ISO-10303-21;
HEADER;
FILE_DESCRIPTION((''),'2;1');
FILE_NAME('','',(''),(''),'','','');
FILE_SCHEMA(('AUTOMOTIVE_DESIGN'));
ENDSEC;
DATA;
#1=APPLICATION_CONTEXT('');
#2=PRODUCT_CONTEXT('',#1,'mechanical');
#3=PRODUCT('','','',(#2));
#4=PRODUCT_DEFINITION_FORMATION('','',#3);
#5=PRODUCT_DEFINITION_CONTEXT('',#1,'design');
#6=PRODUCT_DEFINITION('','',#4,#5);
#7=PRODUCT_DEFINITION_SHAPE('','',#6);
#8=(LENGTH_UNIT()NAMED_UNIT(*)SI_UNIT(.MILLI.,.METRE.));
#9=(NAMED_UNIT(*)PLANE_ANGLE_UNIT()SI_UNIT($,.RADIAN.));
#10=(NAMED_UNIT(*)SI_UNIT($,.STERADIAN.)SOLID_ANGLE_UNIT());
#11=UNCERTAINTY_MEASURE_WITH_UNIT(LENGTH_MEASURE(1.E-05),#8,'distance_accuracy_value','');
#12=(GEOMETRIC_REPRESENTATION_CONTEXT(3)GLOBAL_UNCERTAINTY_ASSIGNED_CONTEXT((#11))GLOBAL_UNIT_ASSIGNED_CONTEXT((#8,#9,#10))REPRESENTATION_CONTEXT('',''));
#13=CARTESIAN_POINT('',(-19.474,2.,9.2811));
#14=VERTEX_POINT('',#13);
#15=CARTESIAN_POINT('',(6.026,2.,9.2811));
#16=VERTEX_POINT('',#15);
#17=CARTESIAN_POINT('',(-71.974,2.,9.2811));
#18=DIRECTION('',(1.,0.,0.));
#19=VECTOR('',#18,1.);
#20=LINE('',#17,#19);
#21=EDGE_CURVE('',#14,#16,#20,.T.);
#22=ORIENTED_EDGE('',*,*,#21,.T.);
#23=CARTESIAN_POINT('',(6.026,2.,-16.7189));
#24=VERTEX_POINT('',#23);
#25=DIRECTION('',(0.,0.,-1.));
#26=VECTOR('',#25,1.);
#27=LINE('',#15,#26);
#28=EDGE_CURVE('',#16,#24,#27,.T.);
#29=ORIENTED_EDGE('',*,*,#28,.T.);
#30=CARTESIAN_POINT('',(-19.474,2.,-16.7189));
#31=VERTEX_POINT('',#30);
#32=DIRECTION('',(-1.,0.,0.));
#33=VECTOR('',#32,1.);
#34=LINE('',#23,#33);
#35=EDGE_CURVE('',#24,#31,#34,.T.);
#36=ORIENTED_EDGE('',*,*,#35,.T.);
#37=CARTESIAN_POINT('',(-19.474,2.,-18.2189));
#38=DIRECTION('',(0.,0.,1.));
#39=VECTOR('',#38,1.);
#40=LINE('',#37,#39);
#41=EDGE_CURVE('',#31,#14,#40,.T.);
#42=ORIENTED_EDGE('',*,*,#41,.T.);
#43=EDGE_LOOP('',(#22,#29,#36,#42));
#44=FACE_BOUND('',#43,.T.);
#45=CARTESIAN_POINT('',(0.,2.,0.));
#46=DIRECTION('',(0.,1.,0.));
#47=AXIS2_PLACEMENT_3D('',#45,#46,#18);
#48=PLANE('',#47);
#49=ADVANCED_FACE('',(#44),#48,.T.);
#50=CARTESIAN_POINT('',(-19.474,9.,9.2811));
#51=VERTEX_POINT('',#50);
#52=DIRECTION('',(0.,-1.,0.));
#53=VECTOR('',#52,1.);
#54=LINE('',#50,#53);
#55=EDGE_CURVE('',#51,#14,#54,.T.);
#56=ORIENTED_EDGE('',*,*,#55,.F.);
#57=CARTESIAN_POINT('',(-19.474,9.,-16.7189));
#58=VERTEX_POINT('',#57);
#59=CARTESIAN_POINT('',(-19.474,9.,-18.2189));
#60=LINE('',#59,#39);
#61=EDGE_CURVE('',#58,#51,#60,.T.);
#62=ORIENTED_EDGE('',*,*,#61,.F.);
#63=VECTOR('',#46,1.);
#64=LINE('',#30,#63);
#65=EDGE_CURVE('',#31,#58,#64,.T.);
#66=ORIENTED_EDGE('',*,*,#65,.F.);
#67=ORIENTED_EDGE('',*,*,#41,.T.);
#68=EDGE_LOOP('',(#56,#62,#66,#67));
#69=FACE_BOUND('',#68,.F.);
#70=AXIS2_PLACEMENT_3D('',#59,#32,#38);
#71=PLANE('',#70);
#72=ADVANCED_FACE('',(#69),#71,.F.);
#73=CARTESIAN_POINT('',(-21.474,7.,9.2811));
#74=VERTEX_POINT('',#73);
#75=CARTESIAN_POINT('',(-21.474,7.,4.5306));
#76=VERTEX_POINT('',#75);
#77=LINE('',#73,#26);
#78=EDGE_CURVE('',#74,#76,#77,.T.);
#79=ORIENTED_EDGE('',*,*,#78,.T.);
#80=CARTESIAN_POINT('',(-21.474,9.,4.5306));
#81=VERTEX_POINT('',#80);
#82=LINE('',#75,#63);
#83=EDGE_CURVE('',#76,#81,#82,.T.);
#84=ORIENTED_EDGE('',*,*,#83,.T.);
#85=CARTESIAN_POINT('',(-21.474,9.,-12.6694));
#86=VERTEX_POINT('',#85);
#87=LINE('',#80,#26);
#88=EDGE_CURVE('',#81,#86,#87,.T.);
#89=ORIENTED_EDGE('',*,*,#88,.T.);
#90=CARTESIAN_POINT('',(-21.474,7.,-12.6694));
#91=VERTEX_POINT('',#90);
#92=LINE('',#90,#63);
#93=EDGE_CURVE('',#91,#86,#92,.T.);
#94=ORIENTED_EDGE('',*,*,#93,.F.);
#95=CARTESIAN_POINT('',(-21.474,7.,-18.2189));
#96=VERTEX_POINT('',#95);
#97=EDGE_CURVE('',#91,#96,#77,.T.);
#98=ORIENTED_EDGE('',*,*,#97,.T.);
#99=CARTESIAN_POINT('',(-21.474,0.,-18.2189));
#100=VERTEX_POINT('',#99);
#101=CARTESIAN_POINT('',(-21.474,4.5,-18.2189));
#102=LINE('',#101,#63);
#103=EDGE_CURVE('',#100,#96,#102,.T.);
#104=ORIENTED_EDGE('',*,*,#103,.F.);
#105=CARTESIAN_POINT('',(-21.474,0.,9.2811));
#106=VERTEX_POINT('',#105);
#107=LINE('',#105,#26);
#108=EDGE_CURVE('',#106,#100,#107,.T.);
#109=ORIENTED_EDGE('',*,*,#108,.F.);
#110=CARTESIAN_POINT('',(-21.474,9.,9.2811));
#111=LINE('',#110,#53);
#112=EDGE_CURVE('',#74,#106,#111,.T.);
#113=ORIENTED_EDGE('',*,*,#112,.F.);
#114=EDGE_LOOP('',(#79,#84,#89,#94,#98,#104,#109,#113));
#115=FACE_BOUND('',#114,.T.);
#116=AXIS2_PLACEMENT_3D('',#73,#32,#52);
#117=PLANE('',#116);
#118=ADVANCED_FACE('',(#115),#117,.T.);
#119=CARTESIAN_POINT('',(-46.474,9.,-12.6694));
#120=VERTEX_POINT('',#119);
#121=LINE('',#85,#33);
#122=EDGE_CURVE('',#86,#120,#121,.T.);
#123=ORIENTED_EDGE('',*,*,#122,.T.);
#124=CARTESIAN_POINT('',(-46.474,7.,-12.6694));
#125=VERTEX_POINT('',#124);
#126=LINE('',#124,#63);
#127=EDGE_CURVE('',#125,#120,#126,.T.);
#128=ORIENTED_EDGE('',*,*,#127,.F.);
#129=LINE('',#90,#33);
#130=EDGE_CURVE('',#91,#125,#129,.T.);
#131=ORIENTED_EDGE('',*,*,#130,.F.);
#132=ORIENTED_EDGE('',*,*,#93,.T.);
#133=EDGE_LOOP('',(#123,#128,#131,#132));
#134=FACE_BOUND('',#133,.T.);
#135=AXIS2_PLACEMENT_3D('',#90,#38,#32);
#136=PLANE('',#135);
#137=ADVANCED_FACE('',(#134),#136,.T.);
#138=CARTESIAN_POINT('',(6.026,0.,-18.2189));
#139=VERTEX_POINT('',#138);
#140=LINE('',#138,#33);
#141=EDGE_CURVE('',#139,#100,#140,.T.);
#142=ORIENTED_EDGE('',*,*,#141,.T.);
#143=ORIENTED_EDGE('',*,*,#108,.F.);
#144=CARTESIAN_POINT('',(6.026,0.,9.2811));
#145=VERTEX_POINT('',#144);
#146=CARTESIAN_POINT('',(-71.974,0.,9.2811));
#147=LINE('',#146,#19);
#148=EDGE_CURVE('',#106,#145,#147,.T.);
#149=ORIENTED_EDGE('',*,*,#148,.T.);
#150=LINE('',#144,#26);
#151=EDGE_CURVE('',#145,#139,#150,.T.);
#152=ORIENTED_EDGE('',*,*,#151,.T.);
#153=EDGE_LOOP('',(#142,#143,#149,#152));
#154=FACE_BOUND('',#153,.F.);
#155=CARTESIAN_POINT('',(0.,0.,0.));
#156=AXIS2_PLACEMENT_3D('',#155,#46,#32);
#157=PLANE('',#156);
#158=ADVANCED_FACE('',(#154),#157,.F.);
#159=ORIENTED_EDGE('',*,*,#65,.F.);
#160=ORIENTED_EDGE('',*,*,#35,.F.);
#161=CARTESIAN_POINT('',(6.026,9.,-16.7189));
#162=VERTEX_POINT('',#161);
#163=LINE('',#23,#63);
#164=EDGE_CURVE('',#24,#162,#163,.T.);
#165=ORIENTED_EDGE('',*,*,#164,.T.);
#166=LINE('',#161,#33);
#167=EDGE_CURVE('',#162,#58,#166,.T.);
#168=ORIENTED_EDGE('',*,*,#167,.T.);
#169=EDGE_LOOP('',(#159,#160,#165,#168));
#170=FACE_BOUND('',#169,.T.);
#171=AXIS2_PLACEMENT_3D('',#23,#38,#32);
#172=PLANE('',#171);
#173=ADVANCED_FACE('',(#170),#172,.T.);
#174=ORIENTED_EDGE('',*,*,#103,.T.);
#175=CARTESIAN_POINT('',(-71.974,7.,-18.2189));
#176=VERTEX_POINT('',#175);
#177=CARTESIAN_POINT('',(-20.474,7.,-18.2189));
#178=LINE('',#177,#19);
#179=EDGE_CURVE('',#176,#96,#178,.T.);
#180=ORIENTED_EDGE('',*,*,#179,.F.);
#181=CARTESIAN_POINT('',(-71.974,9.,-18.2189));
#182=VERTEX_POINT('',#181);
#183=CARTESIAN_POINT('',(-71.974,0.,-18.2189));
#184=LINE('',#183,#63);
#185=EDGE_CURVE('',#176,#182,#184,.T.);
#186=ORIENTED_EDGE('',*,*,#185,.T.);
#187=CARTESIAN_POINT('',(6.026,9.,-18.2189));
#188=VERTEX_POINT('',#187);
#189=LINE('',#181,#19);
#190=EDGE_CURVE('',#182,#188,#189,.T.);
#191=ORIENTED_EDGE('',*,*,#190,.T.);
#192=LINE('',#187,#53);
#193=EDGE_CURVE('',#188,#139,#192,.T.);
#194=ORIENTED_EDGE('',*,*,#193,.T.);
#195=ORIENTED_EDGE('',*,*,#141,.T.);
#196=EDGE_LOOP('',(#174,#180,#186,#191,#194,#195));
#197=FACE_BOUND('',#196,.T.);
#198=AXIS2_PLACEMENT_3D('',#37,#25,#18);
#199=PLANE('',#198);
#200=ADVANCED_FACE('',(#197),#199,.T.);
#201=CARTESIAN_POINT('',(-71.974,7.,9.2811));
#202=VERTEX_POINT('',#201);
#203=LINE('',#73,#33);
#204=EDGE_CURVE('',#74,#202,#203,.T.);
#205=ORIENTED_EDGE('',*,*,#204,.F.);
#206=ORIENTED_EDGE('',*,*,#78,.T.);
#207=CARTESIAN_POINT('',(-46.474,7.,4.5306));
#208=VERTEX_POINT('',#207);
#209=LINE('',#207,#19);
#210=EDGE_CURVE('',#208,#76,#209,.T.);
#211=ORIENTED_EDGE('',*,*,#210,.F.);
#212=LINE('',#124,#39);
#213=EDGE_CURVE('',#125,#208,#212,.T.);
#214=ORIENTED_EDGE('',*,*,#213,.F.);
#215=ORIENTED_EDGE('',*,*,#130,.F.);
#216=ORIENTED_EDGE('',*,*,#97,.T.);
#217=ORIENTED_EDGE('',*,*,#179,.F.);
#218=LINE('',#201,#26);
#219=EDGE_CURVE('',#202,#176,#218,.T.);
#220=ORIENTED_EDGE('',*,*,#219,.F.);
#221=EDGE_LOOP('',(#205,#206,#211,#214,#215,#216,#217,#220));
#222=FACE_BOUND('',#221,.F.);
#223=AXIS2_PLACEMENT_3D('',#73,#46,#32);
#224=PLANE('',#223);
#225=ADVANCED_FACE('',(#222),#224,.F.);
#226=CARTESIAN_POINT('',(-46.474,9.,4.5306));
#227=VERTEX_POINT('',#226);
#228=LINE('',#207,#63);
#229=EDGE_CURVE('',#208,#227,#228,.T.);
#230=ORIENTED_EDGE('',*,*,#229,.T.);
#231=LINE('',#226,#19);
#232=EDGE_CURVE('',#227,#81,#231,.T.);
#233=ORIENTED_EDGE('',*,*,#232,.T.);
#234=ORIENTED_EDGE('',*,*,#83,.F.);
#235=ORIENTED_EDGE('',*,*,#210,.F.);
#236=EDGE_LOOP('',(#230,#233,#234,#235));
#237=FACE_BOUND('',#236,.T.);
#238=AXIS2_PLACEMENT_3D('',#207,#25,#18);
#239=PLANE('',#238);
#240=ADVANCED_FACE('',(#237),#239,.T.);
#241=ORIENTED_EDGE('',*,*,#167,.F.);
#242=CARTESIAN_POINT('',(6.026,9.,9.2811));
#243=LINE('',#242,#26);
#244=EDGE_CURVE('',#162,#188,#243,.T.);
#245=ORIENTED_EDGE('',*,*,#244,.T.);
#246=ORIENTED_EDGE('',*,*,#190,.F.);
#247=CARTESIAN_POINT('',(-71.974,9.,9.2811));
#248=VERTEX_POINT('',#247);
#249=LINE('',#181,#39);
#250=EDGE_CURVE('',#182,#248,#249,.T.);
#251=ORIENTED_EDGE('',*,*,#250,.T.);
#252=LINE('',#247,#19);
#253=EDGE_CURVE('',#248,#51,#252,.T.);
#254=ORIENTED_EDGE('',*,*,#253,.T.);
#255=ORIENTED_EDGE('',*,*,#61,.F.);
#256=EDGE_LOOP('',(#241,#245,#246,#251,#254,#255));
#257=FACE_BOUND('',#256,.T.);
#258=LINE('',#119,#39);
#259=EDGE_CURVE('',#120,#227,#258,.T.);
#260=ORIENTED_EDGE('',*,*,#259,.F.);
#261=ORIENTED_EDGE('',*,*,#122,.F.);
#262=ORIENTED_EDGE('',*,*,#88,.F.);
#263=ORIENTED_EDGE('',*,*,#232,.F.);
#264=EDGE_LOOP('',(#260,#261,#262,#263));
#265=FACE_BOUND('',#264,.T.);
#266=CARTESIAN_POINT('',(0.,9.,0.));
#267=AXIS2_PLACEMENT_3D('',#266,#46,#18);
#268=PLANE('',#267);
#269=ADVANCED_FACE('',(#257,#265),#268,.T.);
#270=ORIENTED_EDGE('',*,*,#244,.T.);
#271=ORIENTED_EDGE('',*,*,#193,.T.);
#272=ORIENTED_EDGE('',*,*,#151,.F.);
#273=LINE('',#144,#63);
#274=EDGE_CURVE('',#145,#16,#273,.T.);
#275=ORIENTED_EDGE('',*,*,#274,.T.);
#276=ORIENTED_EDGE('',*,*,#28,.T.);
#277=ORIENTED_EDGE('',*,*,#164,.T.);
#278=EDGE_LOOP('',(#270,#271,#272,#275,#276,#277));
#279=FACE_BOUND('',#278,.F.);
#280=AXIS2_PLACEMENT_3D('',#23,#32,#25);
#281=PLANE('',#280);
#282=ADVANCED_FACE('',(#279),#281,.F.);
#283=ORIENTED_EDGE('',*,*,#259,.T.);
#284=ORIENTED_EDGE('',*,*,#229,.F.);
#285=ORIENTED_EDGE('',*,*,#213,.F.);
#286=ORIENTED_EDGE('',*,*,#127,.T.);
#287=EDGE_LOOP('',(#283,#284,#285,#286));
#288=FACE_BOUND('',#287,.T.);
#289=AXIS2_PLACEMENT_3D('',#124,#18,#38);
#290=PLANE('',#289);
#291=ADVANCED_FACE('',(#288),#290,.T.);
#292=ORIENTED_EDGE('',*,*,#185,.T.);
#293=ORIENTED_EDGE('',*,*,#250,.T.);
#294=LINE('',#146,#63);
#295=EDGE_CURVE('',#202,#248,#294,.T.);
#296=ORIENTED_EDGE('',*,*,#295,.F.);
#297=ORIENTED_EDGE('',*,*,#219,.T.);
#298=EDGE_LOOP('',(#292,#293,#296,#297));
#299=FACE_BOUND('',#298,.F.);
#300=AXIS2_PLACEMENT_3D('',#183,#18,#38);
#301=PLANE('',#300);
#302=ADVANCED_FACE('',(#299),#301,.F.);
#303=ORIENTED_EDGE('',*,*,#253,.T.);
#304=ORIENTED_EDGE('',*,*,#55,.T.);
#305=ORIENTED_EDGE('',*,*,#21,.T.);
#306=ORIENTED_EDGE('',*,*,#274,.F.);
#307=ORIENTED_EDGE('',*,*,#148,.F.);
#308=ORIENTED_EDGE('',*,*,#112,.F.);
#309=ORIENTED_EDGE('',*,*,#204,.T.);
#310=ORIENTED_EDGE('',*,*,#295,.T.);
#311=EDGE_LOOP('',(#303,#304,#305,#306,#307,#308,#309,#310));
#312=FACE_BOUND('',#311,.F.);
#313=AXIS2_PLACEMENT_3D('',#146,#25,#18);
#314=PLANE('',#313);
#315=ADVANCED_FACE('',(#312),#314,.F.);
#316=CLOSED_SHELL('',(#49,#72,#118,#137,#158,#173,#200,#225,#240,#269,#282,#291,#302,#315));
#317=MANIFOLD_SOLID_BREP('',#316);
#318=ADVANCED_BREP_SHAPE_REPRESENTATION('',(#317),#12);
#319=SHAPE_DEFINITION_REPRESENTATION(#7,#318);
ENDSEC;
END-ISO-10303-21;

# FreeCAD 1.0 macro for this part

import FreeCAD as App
import Part
import Sketcher
Q = App.Units.Quantity


def add_polygon(sketch, points):
    """Adds a closed chain of lines whose ends are joined by coincident constraints."""
    first, n = sketch.GeometryCount, len(points)
    for a, b in zip(points, points[1:] + points[:1]):
        sketch.addGeometry(Part.LineSegment(App.Vector(*a, 0), App.Vector(*b, 0)), False)
    for i in range(n):
        sketch.addConstraint(Sketcher.Constraint("Coincident", first + i, 2, first + (i + 1) % n, 1))

doc = App.newDocument("Part")
params = doc.addObject("Spreadsheet::Sheet", "Params")
for row, (alias, value) in enumerate([
    ("sketch1_width", "78 mm"),
    ("sketch1_height", "27.5 mm"),
    ("pad1_length", "9 mm"),
    ("sketch2_width", "25.5 mm"),
    ("sketch2_height", "27.5 mm"),
    ("pocket1_length", "7 mm"),
    ("sketch3_height", "1.5 mm"),
    ("sketch3_width", "25.5 mm"),
    ("pad2_length", "7 mm"),
    ("sketch4_height", "7 mm"),
    ("sketch4_width", "50.5 mm"),
    ("pocket2_length", "44 mm"),
    ("sketch5_width", "25 mm"),
    ("sketch5_height", "17.2 mm"),
    ("pocket3_length", "2 mm"),
], start=1):
    params.set(f"A{row}", alias)
    params.set(f"B{row}", "=" + value)
    params.setAlias(f"B{row}", alias)

body = doc.addObject("PartDesign::Body", "Body")

sketch1 = body.newObject("Sketcher::SketchObject", "Sketch")
sketch1.AttachmentSupport = (doc.getObject("XZ_Plane"), [""])
sketch1.MapMode = "FlatFace"
add_polygon(sketch1, [(-71.974, -18.2189), (-71.974, 9.2811), (6.026, 9.2811), (6.026, -18.2189)])
sketch1.addConstraint(Sketcher.Constraint("Vertical", 0))
sketch1.addConstraint(Sketcher.Constraint("Horizontal", 1))
sketch1.addConstraint(Sketcher.Constraint("Vertical", 2))
sketch1.addConstraint(Sketcher.Constraint("Horizontal", 3))
sketch1.addConstraint(Sketcher.Constraint("DistanceX", 1, 1, 1, 2, Q("78 mm")))
sketch1.addConstraint(Sketcher.Constraint("DistanceY", 0, 1, 0, 2, Q("27.5 mm")))
sketch1.addConstraint(Sketcher.Constraint("DistanceX", 0, 2, -1, 1, Q("71.974 mm")))
sketch1.addConstraint(Sketcher.Constraint("DistanceY", -1, 1, 0, 2, Q("9.281 mm")))
sketch1.setExpression("Constraints[8]", "Params.sketch1_width")
sketch1.setExpression("Constraints[9]", "Params.sketch1_height")
pad1 = body.newObject("PartDesign::Pad", "Pad")
pad1.Profile = sketch1
pad1.setExpression("Length", "Params.pad1_length")
pad1.Reversed = True

sketch2 = body.newObject("Sketcher::SketchObject", "Sketch001")
sketch2.AttachmentSupport = (doc.getObject("XZ_Plane"), [""])
sketch2.MapMode = "FlatFace"
sketch2.AttachmentOffset = App.Placement(App.Vector(0, 0, -9), App.Rotation())
add_polygon(sketch2, [(6.026, 9.2811), (6.026, -18.2189), (-19.474, -18.2189), (-19.474, 9.2811)])
sketch2.addConstraint(Sketcher.Constraint("Vertical", 0))
sketch2.addConstraint(Sketcher.Constraint("Horizontal", 1))
sketch2.addConstraint(Sketcher.Constraint("Vertical", 2))
sketch2.addConstraint(Sketcher.Constraint("Horizontal", 3))
sketch2.addConstraint(Sketcher.Constraint("DistanceX", 1, 2, 1, 1, Q("25.5 mm")))
sketch2.addConstraint(Sketcher.Constraint("DistanceY", 0, 2, 0, 1, Q("27.5 mm")))
sketch2.addConstraint(Sketcher.Constraint("DistanceX", -1, 1, 0, 2, Q("6.026 mm")))
sketch2.addConstraint(Sketcher.Constraint("DistanceY", 0, 2, -1, 1, Q("18.219 mm")))
sketch2.setExpression("Constraints[8]", "Params.sketch2_width")
sketch2.setExpression("Constraints[9]", "Params.sketch2_height")
pocket1 = body.newObject("PartDesign::Pocket", "Pocket")
pocket1.Profile = sketch2
pocket1.setExpression("Length", "Params.pocket1_length")
pocket1.Reversed = True

sketch3 = body.newObject("Sketcher::SketchObject", "Sketch002")
sketch3.AttachmentSupport = (doc.getObject("XZ_Plane"), [""])
sketch3.MapMode = "FlatFace"
sketch3.AttachmentOffset = App.Placement(App.Vector(0, 0, -2), App.Rotation())
add_polygon(sketch3, [(-19.474, -18.2189), (-19.474, -16.7189), (6.026, -16.7189), (6.026, -18.2189)])
sketch3.addConstraint(Sketcher.Constraint("Vertical", 0))
sketch3.addConstraint(Sketcher.Constraint("Horizontal", 1))
sketch3.addConstraint(Sketcher.Constraint("Vertical", 2))
sketch3.addConstraint(Sketcher.Constraint("Horizontal", 3))
sketch3.addConstraint(Sketcher.Constraint("DistanceY", 0, 1, 0, 2, Q("1.5 mm")))
sketch3.addConstraint(Sketcher.Constraint("DistanceX", 1, 1, 1, 2, Q("25.5 mm")))
sketch3.addConstraint(Sketcher.Constraint("DistanceX", 0, 2, -1, 1, Q("19.474 mm")))
sketch3.addConstraint(Sketcher.Constraint("DistanceY", 0, 2, -1, 1, Q("16.719 mm")))
sketch3.setExpression("Constraints[8]", "Params.sketch3_height")
sketch3.setExpression("Constraints[9]", "Params.sketch3_width")
pad2 = body.newObject("PartDesign::Pad", "Pad001")
pad2.Profile = sketch3
pad2.setExpression("Length", "Params.pad2_length")
pad2.Reversed = True

sketch4 = body.newObject("Sketcher::SketchObject", "Sketch003")
sketch4.AttachmentSupport = (doc.getObject("XY_Plane"), [""])
sketch4.MapMode = "FlatFace"
sketch4.AttachmentOffset = App.Placement(App.Vector(0, 0, 9.2811), App.Rotation())
add_polygon(sketch4, [(-21.474, 7), (-71.974, 7), (-71.974, 0), (-21.474, 0)])
sketch4.addConstraint(Sketcher.Constraint("Horizontal", 0))
sketch4.addConstraint(Sketcher.Constraint("Vertical", 1))
sketch4.addConstraint(Sketcher.Constraint("Horizontal", 2))
sketch4.addConstraint(Sketcher.Constraint("Vertical", 3))
sketch4.addConstraint(Sketcher.Constraint("PointOnObject", 1, 2, -1))
sketch4.addConstraint(Sketcher.Constraint("DistanceY", 1, 2, 1, 1, Q("7 mm")))
sketch4.addConstraint(Sketcher.Constraint("DistanceX", 0, 2, 0, 1, Q("50.5 mm")))
sketch4.addConstraint(Sketcher.Constraint("DistanceX", 0, 2, -1, 1, Q("71.974 mm")))
sketch4.setExpression("Constraints[9]", "Params.sketch4_height")
sketch4.setExpression("Constraints[10]", "Params.sketch4_width")
pocket2 = body.newObject("PartDesign::Pocket", "Pocket001")
pocket2.Profile = sketch4
pocket2.setExpression("Length", "Params.pocket2_length")

sketch5 = body.newObject("Sketcher::SketchObject", "Sketch004")
sketch5.AttachmentSupport = (doc.getObject("XZ_Plane"), [""])
sketch5.MapMode = "FlatFace"
sketch5.AttachmentOffset = App.Placement(App.Vector(0, 0, -7), App.Rotation())
add_polygon(sketch5, [(-46.474, -12.6694), (-21.474, -12.6694), (-21.474, 4.5306), (-46.474, 4.5306)])
sketch5.addConstraint(Sketcher.Constraint("Horizontal", 0))
sketch5.addConstraint(Sketcher.Constraint("Vertical", 1))
sketch5.addConstraint(Sketcher.Constraint("Horizontal", 2))
sketch5.addConstraint(Sketcher.Constraint("Vertical", 3))
sketch5.addConstraint(Sketcher.Constraint("DistanceX", 0, 1, 0, 2, Q("25 mm")))
sketch5.addConstraint(Sketcher.Constraint("DistanceY", 1, 1, 1, 2, Q("17.2 mm")))
sketch5.addConstraint(Sketcher.Constraint("DistanceX", 0, 2, -1, 1, Q("21.474 mm")))
sketch5.addConstraint(Sketcher.Constraint("DistanceY", 0, 2, -1, 1, Q("12.6694 mm")))
sketch5.setExpression("Constraints[8]", "Params.sketch5_width")
sketch5.setExpression("Constraints[9]", "Params.sketch5_height")
pocket3 = body.newObject("PartDesign::Pocket", "Pocket002")
pocket3.Profile = sketch5
pocket3.setExpression("Length", "Params.pocket3_length")

doc.recompute()
